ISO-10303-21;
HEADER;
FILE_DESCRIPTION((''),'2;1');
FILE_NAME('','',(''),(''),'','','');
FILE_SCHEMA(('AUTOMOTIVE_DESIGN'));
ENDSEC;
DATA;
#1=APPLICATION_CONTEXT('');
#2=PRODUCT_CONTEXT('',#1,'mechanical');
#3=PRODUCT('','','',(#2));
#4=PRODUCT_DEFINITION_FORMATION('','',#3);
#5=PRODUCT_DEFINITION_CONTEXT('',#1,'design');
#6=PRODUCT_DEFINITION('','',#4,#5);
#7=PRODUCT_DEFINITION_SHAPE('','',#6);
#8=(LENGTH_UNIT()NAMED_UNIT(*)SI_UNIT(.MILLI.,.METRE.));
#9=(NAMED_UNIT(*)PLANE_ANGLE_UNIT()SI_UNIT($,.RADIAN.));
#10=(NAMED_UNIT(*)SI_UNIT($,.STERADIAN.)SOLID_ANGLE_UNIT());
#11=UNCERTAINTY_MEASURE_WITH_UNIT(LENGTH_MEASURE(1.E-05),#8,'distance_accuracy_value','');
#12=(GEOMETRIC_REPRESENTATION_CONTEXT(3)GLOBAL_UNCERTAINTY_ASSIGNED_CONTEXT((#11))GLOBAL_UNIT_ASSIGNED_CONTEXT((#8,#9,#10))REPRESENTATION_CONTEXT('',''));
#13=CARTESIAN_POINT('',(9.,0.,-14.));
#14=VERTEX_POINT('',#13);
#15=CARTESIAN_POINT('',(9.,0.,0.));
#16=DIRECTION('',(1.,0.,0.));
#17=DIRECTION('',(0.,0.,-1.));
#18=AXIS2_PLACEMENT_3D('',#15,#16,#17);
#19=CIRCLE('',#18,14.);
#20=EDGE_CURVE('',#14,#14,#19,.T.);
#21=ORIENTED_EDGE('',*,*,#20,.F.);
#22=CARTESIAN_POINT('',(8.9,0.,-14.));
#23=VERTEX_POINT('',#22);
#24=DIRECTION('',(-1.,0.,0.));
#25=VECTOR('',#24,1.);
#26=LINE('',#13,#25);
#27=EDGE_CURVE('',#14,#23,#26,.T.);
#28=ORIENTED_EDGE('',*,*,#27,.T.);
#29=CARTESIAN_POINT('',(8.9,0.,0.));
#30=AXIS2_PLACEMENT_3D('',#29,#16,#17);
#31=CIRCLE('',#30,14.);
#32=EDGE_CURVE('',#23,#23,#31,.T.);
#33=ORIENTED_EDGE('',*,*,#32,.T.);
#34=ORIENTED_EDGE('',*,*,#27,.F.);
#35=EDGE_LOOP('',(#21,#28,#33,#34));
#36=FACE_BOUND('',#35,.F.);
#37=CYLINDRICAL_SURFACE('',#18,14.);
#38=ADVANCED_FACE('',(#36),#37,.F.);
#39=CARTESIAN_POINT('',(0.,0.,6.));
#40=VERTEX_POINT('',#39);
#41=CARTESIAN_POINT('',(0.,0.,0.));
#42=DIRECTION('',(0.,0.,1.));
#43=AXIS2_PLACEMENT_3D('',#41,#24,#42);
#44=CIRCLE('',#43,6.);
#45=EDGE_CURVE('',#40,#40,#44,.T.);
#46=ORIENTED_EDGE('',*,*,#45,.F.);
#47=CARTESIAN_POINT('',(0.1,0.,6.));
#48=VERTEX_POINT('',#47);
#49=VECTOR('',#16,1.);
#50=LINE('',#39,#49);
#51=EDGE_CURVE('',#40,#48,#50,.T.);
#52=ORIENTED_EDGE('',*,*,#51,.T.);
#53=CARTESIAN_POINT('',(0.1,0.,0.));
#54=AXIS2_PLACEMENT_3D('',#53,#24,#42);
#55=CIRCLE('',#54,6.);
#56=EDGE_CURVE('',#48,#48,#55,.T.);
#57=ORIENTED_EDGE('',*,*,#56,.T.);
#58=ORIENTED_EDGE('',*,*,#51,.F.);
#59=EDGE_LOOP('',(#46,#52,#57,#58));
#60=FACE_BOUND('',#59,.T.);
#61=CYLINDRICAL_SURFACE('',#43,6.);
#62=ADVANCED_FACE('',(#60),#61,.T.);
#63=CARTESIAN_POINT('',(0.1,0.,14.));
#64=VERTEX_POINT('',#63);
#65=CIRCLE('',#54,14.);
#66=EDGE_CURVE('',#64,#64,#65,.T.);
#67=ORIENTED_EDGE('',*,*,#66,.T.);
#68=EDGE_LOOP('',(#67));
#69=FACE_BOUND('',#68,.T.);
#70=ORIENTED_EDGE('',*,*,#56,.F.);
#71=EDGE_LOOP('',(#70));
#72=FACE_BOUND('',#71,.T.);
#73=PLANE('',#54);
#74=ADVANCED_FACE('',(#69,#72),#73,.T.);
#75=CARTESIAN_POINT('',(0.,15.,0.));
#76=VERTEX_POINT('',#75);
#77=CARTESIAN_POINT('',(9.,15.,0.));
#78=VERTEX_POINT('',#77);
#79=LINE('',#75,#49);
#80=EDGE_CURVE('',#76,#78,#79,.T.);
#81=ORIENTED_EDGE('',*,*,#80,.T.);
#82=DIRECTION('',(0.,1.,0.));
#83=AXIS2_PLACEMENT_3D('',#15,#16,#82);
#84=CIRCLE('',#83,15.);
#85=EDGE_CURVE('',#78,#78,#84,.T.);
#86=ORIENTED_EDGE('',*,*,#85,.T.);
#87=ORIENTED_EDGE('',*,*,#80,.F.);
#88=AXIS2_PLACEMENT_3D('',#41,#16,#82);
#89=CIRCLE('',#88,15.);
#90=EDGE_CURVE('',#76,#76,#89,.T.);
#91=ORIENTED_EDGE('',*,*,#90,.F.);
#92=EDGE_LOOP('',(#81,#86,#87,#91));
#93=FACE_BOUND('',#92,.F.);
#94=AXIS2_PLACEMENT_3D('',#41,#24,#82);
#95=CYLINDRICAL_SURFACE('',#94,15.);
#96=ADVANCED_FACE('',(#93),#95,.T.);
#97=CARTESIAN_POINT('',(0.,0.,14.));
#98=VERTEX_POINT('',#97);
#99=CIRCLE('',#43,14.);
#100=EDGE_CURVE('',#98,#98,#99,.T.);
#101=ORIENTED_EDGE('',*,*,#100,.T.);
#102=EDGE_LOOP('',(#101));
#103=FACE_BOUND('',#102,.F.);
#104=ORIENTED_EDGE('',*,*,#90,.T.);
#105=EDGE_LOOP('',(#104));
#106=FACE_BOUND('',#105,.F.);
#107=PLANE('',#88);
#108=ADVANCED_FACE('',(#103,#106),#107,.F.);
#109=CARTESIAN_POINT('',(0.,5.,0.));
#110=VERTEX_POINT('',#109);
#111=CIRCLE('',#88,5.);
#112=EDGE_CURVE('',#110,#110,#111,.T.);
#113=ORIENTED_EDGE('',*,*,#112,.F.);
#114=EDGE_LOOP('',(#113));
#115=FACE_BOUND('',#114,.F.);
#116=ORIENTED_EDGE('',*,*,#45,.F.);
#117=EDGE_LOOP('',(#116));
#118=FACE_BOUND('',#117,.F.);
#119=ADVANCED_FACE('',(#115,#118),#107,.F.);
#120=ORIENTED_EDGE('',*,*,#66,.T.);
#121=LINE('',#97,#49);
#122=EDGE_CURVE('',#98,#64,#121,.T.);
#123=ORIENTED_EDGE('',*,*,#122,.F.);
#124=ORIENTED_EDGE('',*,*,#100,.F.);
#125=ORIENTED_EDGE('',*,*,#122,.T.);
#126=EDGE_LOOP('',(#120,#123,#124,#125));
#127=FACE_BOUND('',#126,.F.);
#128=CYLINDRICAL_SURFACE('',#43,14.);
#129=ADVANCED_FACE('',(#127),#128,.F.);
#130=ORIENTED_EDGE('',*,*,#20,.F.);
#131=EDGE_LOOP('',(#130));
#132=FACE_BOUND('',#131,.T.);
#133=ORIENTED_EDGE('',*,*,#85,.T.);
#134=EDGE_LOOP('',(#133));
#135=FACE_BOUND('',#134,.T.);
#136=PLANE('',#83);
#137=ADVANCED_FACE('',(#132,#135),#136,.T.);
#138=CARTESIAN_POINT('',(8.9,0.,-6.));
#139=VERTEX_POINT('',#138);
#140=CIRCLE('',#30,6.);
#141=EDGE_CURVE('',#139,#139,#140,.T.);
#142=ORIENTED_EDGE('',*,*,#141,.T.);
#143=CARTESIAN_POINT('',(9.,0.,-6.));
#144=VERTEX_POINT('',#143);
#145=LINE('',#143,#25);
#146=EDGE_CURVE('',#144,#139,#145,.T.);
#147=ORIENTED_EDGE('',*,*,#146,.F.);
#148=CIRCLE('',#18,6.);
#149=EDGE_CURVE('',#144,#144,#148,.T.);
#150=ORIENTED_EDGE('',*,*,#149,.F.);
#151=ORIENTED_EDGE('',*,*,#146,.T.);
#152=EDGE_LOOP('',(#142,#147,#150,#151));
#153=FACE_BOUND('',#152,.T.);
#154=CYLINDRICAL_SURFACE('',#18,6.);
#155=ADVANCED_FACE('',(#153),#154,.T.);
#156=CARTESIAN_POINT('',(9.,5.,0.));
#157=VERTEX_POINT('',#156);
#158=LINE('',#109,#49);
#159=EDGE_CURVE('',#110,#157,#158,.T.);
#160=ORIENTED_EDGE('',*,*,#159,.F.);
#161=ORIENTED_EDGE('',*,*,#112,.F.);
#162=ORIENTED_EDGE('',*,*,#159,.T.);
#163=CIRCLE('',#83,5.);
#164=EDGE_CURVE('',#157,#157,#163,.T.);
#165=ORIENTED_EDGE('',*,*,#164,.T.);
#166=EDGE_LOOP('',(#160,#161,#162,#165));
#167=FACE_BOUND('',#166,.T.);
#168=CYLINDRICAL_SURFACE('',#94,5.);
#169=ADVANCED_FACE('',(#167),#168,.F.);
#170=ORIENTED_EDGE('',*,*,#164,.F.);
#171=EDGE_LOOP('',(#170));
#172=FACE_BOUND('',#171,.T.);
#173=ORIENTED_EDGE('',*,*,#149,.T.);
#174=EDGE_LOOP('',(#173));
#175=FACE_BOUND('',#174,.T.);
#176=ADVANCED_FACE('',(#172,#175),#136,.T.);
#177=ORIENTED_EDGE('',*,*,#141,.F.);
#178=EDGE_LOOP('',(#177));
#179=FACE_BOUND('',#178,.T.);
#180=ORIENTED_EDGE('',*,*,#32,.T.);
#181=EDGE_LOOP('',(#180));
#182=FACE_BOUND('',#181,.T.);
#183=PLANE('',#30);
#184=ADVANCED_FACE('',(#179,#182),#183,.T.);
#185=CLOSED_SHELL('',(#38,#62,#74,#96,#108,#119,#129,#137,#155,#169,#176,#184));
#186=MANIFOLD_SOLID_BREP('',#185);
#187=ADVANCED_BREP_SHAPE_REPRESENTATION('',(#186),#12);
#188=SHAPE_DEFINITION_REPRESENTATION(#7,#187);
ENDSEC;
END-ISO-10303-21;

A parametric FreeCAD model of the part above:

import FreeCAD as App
import Part
import Sketcher
Q = App.Units.Quantity

doc = App.newDocument("Part")
body = doc.addObject("PartDesign::Body", "Body")

# Sketch on YZ plane
sketch1 = doc.addObject("Sketcher::SketchObject", "Sketch")
body.addObject(sketch1)
sketch1.AttachmentSupport = (doc.YZ_Plane, [""])
sketch1.MapMode = "FlatFace"
sketch1.addGeometry([
    Part.Circle(App.Vector(0, 0, 0), App.Vector(0, 0, 1), 15),
    Part.Circle(App.Vector(0, 0, 0), App.Vector(0, 0, 1), 5),
], False)
sketch1.addConstraint([
    Sketcher.Constraint("Coincident", 0, 3, -1, 1),
    Sketcher.Constraint("Coincident", 1, 3, -1, 1),
    Sketcher.Constraint("Diameter", 0, Q("30 mm")),
    Sketcher.Constraint("Diameter", 1, Q("10 mm")),
])
pad1 = doc.addObject("PartDesign::Pad", "Pad")
body.addObject(pad1)
pad1.Profile = sketch1
pad1.Length = 9

# Sketch on YZ plane
sketch2 = doc.addObject("Sketcher::SketchObject", "Sketch001")
body.addObject(sketch2)
sketch2.AttachmentSupport = (doc.YZ_Plane, [""])
sketch2.MapMode = "FlatFace"
sketch2.AttachmentOffset = App.Placement(App.Vector(0, 0, 9), App.Rotation())
sketch2.addGeometry([
    Part.Circle(App.Vector(0, 0, 0), App.Vector(0, 0, 1), 14),
    Part.Circle(App.Vector(0, 0, 0), App.Vector(0, 0, 1), 6),
], False)
sketch2.addConstraint([
    Sketcher.Constraint("Coincident", 0, 3, -1, 1),
    Sketcher.Constraint("Coincident", 1, 3, -1, 1),
    Sketcher.Constraint("Diameter", 0, Q("28 mm")),
    Sketcher.Constraint("Diameter", 1, Q("12 mm")),
])
pocket1 = doc.addObject("PartDesign::Pocket", "Pocket")
body.addObject(pocket1)
pocket1.Profile = sketch2
pocket1.Length = 0.1

# Sketch on YZ plane
sketch3 = doc.addObject("Sketcher::SketchObject", "Sketch002")
body.addObject(sketch3)
sketch3.AttachmentSupport = (doc.YZ_Plane, [""])
sketch3.MapMode = "FlatFace"
sketch3.addGeometry([
    Part.Circle(App.Vector(0, 0, 0), App.Vector(0, 0, 1), 14),
    Part.Circle(App.Vector(0, 0, 0), App.Vector(0, 0, 1), 6),
], False)
sketch3.addConstraint([
    Sketcher.Constraint("Coincident", 0, 3, -1, 1),
    Sketcher.Constraint("Coincident", 1, 3, -1, 1),
    Sketcher.Constraint("Diameter", 0, Q("28 mm")),
    Sketcher.Constraint("Diameter", 1, Q("12 mm")),
])
pocket2 = doc.addObject("PartDesign::Pocket", "Pocket001")
body.addObject(pocket2)
pocket2.Profile = sketch3
pocket2.Length = 0.1
pocket2.Reversed = True

doc.recompute()
